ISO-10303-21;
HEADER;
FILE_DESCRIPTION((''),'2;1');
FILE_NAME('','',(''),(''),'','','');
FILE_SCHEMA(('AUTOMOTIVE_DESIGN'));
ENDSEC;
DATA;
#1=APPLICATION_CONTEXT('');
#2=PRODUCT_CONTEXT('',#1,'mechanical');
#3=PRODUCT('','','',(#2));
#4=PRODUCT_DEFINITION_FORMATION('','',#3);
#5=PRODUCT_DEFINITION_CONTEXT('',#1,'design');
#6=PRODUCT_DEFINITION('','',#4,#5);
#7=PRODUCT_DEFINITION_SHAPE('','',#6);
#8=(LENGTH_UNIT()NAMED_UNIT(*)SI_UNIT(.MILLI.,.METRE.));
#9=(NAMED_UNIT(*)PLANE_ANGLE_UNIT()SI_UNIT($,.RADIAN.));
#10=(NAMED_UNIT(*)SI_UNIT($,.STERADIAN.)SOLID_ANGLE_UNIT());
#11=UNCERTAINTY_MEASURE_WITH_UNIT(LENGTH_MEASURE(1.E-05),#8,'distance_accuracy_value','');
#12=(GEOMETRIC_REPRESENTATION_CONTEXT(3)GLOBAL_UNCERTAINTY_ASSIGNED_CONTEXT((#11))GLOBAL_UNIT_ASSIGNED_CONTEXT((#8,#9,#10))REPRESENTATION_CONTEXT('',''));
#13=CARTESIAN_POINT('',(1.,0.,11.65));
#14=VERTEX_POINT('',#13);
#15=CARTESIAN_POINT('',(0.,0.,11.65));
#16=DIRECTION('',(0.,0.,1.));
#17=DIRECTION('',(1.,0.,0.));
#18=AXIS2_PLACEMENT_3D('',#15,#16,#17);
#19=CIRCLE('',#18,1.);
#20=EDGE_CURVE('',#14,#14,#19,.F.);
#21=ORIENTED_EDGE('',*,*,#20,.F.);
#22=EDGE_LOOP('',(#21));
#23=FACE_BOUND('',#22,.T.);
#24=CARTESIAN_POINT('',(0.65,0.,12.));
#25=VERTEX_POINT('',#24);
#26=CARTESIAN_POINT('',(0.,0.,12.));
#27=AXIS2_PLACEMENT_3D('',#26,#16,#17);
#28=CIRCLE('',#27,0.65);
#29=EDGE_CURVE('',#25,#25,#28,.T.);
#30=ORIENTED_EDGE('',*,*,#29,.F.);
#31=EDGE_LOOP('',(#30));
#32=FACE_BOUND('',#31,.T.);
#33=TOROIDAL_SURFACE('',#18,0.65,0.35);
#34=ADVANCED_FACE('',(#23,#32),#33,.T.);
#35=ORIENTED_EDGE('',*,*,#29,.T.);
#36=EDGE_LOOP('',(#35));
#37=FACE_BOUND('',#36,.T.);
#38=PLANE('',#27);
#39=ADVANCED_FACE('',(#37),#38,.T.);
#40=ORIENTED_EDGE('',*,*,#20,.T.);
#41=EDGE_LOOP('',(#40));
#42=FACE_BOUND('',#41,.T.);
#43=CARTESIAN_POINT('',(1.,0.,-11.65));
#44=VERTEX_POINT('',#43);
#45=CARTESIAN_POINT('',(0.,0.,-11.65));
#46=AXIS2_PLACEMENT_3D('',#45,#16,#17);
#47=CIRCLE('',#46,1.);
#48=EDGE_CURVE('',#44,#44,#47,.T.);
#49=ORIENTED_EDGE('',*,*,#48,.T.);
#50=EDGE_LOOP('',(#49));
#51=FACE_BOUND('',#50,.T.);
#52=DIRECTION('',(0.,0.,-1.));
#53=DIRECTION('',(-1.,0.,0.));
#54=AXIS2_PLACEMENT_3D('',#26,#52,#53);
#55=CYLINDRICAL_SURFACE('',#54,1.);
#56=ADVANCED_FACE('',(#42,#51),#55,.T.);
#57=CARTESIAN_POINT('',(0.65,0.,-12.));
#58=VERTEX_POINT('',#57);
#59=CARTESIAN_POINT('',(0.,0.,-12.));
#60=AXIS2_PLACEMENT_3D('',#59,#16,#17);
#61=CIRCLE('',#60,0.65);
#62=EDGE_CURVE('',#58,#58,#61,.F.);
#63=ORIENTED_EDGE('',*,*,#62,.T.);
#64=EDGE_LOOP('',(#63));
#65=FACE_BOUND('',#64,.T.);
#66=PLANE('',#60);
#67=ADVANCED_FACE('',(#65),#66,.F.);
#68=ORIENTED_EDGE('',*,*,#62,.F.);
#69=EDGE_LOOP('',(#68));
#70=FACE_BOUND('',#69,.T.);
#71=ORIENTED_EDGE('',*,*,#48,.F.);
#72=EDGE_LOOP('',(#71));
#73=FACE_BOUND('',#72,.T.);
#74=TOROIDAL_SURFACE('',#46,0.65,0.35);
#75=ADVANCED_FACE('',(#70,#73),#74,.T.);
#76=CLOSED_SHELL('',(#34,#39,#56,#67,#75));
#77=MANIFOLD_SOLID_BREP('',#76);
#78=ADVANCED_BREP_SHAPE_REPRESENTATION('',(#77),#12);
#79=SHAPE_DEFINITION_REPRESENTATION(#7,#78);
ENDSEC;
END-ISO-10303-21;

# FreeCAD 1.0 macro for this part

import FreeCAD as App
import Part
import Sketcher
Q = App.Units.Quantity


def edges_at(feature, points):
    """Names of the edges that pass closest to the given points."""
    edges = feature.Shape.Edges
    near = lambda p: min(range(len(edges)), key=lambda i: edges[i].distToShape(Part.Vertex(*p))[0])
    return sorted({f"Edge{near(p) + 1}" for p in points})

doc = App.newDocument("Part")
body = doc.addObject("PartDesign::Body", "Body")

# Sketch on XY plane
sketch1 = body.newObject("Sketcher::SketchObject", "Sketch")
sketch1.AttachmentSupport = (doc.getObject("XY_Plane"), [""])
sketch1.MapMode = "FlatFace"
sketch1.addGeometry(Part.Circle(App.Vector(0, 0, 0), App.Vector(0, 0, 1), 1), False)
sketch1.addConstraint([
    Sketcher.Constraint("Coincident", 0, 3, -1, 1),
    Sketcher.Constraint("Diameter", 0, Q("2 mm")),
])
pad1 = body.newObject("PartDesign::Pad", "Pad")
pad1.Profile = sketch1
pad1.Length = 24
pad1.Midplane = True
doc.recompute()

fillet = body.newObject("PartDesign::Fillet", "Fillet")
fillet.Base = (pad1, edges_at(pad1, [(-1, 0, -12), (-1, 0, 12)]))
fillet.Radius = 0.35

doc.recompute()
